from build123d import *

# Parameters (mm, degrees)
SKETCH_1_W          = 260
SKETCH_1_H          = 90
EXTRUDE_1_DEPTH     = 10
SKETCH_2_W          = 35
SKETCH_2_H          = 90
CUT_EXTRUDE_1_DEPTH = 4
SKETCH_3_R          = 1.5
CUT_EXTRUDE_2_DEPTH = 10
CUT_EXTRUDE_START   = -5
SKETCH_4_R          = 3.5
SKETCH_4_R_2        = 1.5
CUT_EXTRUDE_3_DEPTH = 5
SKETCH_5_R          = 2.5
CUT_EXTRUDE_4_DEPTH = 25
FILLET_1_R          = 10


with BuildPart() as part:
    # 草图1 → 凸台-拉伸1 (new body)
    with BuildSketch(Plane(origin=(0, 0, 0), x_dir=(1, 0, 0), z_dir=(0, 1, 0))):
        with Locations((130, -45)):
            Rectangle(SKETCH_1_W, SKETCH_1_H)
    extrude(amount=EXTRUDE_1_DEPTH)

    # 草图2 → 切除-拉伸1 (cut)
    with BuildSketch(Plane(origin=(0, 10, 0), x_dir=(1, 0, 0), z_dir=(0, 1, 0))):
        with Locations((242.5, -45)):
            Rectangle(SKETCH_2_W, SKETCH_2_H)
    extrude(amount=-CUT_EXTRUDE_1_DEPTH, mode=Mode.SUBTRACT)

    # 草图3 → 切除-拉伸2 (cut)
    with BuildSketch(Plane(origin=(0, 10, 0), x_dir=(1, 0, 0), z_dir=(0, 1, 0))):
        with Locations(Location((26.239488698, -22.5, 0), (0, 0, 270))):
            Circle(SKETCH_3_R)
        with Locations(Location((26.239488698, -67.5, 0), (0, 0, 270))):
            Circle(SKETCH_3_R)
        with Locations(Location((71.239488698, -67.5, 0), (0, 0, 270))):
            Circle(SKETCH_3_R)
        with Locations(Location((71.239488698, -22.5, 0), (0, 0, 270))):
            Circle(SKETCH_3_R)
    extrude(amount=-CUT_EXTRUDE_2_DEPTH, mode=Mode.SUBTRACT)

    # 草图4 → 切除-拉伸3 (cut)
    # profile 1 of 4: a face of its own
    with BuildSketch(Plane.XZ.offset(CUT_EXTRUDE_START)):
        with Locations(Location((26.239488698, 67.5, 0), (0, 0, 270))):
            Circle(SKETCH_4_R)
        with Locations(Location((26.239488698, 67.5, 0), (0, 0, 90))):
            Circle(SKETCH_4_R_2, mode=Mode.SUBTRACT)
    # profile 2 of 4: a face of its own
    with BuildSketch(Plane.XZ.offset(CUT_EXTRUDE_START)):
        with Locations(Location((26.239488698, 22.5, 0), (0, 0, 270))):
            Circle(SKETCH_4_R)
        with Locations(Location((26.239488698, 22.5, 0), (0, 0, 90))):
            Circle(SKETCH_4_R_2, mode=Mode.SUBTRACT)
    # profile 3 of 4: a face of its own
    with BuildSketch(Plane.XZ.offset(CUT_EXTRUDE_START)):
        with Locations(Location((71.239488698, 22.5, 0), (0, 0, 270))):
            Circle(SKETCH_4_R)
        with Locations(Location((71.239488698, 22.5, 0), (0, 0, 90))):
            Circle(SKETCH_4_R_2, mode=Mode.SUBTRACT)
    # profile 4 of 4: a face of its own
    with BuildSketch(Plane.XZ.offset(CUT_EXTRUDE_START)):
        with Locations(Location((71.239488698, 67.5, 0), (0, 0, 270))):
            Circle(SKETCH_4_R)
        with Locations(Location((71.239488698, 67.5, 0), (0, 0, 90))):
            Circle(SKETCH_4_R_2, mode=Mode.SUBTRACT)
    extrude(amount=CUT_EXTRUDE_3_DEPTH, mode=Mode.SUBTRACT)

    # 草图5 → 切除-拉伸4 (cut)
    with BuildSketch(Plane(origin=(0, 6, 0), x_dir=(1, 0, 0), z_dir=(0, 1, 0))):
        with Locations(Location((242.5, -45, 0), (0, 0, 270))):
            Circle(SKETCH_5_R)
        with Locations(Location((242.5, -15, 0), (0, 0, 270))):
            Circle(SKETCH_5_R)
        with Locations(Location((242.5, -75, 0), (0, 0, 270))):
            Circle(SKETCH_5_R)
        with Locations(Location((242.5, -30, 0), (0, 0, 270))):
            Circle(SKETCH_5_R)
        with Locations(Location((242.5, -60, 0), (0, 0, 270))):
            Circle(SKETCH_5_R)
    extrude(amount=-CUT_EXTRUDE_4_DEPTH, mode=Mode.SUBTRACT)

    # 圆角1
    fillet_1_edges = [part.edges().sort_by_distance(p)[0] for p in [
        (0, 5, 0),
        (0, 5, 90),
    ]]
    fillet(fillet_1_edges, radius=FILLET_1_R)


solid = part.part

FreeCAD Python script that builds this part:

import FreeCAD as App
import Part
import Sketcher

V = App.Vector
Q = App.Units.Quantity


def edges_at(feature, points):
    """Names of the edges that pass closest to the given points."""
    edges = feature.Shape.Edges
    near = lambda p: min(range(len(edges)), key=lambda i: edges[i].distToShape(Part.Vertex(*p))[0])
    return sorted({f"Edge{near(p) + 1}" for p in points})

doc = App.newDocument("Part")
body = doc.addObject("PartDesign::Body", "Body")

sketch1 = doc.addObject("Sketcher::SketchObject", "Sketch")
body.addObject(sketch1)
sketch1.AttachmentSupport = (doc.XZ_Plane, [""])
sketch1.MapMode = "FlatFace"
sketch1.addGeometry(Part.LineSegment(V(0, 0, 0), V(0, 90, 0)), False)
sketch1.addGeometry(Part.LineSegment(V(0, 90, 0), V(260, 90, 0)), False)
sketch1.addGeometry(Part.LineSegment(V(260, 90, 0), V(260, 0, 0)), False)
sketch1.addGeometry(Part.LineSegment(V(260, 0, 0), V(0, 0, 0)), False)
sketch1.addConstraint(Sketcher.Constraint("Coincident", 0, 2, 1, 1))
sketch1.addConstraint(Sketcher.Constraint("Coincident", 1, 2, 2, 1))
sketch1.addConstraint(Sketcher.Constraint("Coincident", 2, 2, 3, 1))
sketch1.addConstraint(Sketcher.Constraint("Coincident", 3, 2, 0, 1))
sketch1.addConstraint(Sketcher.Constraint("Vertical", 0))
sketch1.addConstraint(Sketcher.Constraint("Horizontal", 1))
sketch1.addConstraint(Sketcher.Constraint("Vertical", 2))
sketch1.addConstraint(Sketcher.Constraint("Horizontal", 3))
sketch1.addConstraint(Sketcher.Constraint("Coincident", 3, 2, -1, 1))
sketch1.addConstraint(Sketcher.Constraint("DistanceX", 1, 1, 1, 2, Q("260 mm")))
sketch1.addConstraint(Sketcher.Constraint("DistanceY", 0, 1, 0, 2, Q("90 mm")))
pad1 = doc.addObject("PartDesign::Pad", "Pad")
body.addObject(pad1)
pad1.Profile = sketch1
pad1.Length = 10
pad1.Reversed = True

sketch2 = doc.addObject("Sketcher::SketchObject", "Sketch001")
body.addObject(sketch2)
sketch2.AttachmentSupport = (doc.XZ_Plane, [""])
sketch2.MapMode = "FlatFace"
sketch2.AttachmentOffset = App.Placement(V(0, 0, -10), App.Rotation())
sketch2.addGeometry(Part.LineSegment(V(225, 0, 0), V(225, 90, 0)), False)
sketch2.addGeometry(Part.LineSegment(V(225, 90, 0), V(260, 90, 0)), False)
sketch2.addGeometry(Part.LineSegment(V(260, 90, 0), V(260, 0, 0)), False)
sketch2.addGeometry(Part.LineSegment(V(260, 0, 0), V(225, 0, 0)), False)
sketch2.addConstraint(Sketcher.Constraint("Coincident", 0, 2, 1, 1))
sketch2.addConstraint(Sketcher.Constraint("Coincident", 1, 2, 2, 1))
sketch2.addConstraint(Sketcher.Constraint("Coincident", 2, 2, 3, 1))
sketch2.addConstraint(Sketcher.Constraint("Coincident", 3, 2, 0, 1))
sketch2.addConstraint(Sketcher.Constraint("Vertical", 0))
sketch2.addConstraint(Sketcher.Constraint("Horizontal", 1))
sketch2.addConstraint(Sketcher.Constraint("Vertical", 2))
sketch2.addConstraint(Sketcher.Constraint("Horizontal", 3))
sketch2.addConstraint(Sketcher.Constraint("PointOnObject", 2, 2, -1))
sketch2.addConstraint(Sketcher.Constraint("DistanceX", 1, 1, 1, 2, Q("35 mm")))
sketch2.addConstraint(Sketcher.Constraint("DistanceY", 0, 1, 0, 2, Q("90 mm")))
sketch2.addConstraint(Sketcher.Constraint("DistanceX", -1, 1, 0, 2, Q("225 mm")))
pocket1 = doc.addObject("PartDesign::Pocket", "Pocket")
body.addObject(pocket1)
pocket1.Profile = sketch2
pocket1.Length = 4
pocket1.Reversed = True

sketch3 = doc.addObject("Sketcher::SketchObject", "Sketch002")
body.addObject(sketch3)
sketch3.AttachmentSupport = (doc.XZ_Plane, [""])
sketch3.MapMode = "FlatFace"
sketch3.AttachmentOffset = App.Placement(V(0, 0, -10), App.Rotation())
sketch3.addGeometry(Part.Circle(V(26.239489, 22.5, 0), V(0, 0, 1), 1.5), False)
sketch3.addGeometry(Part.Circle(V(26.239489, 67.5, 0), V(0, 0, 1), 1.5), False)
sketch3.addGeometry(Part.Circle(V(71.239489, 67.5, 0), V(0, 0, 1), 1.5), False)
sketch3.addGeometry(Part.Circle(V(71.239489, 22.5, 0), V(0, 0, 1), 1.5), False)
sketch3.addConstraint(Sketcher.Constraint("Equal", 0, 1))
sketch3.addConstraint(Sketcher.Constraint("Equal", 1, 2))
sketch3.addConstraint(Sketcher.Constraint("Equal", 2, 3))
sketch3.addConstraint(Sketcher.Constraint("Horizontal", 1, 3, 2, 3))
sketch3.addConstraint(Sketcher.Constraint("Horizontal", 0, 3, 3, 3))
sketch3.addConstraint(Sketcher.Constraint("Vertical", 0, 3, 1, 3))
sketch3.addConstraint(Sketcher.Constraint("Vertical", 2, 3, 3, 3))
sketch3.addConstraint(Sketcher.Constraint("Diameter", 0, Q("3 mm")))
sketch3.addConstraint(Sketcher.Constraint("DistanceY", 0, 3, 1, 3, Q("45 mm")))
sketch3.addConstraint(Sketcher.Constraint("DistanceX", 1, 3, 2, 3, Q("45 mm")))
sketch3.addConstraint(Sketcher.Constraint("DistanceY", -1, 1, 0, 3, Q("22.5 mm")))
sketch3.addConstraint(Sketcher.Constraint("DistanceX", -1, 1, 0, 3, Q("26.239489 mm")))
pocket2 = doc.addObject("PartDesign::Pocket", "Pocket001")
body.addObject(pocket2)
pocket2.Profile = sketch3
pocket2.Length = 10
pocket2.Reversed = True

sketch4 = doc.addObject("Sketcher::SketchObject", "Sketch003")
body.addObject(sketch4)
sketch4.AttachmentSupport = (doc.XZ_Plane, [""])
sketch4.MapMode = "FlatFace"
sketch4.AttachmentOffset = App.Placement(V(0, 0, -5), App.Rotation())
sketch4.addGeometry(Part.Circle(V(26.239489, 67.5, 0), V(0, 0, 1), 3.5), False)
sketch4.addGeometry(Part.Circle(V(26.239489, 67.5, 0), V(0, 0, 1), 1.5), False)
sketch4.addGeometry(Part.Circle(V(26.239489, 22.5, 0), V(0, 0, 1), 3.5), False)
sketch4.addGeometry(Part.Circle(V(26.239489, 22.5, 0), V(0, 0, 1), 1.5), False)
sketch4.addGeometry(Part.Circle(V(71.239489, 22.5, 0), V(0, 0, 1), 3.5), False)
sketch4.addGeometry(Part.Circle(V(71.239489, 22.5, 0), V(0, 0, 1), 1.5), False)
sketch4.addGeometry(Part.Circle(V(71.239489, 67.5, 0), V(0, 0, 1), 3.5), False)
sketch4.addGeometry(Part.Circle(V(71.239489, 67.5, 0), V(0, 0, 1), 1.5), False)
sketch4.addConstraint(Sketcher.Constraint("Coincident", 1, 3, 0, 3))
sketch4.addConstraint(Sketcher.Constraint("Coincident", 3, 3, 2, 3))
sketch4.addConstraint(Sketcher.Constraint("Coincident", 5, 3, 4, 3))
sketch4.addConstraint(Sketcher.Constraint("Coincident", 7, 3, 6, 3))
sketch4.addConstraint(Sketcher.Constraint("Equal", 0, 2))
sketch4.addConstraint(Sketcher.Constraint("Equal", 1, 3))
sketch4.addConstraint(Sketcher.Constraint("Equal", 2, 4))
sketch4.addConstraint(Sketcher.Constraint("Equal", 3, 5))
sketch4.addConstraint(Sketcher.Constraint("Equal", 4, 6))
sketch4.addConstraint(Sketcher.Constraint("Equal", 5, 7))
sketch4.addConstraint(Sketcher.Constraint("Horizontal", 3, 3, 4, 3))
sketch4.addConstraint(Sketcher.Constraint("Horizontal", 1, 3, 6, 3))
sketch4.addConstraint(Sketcher.Constraint("Vertical", 1, 3, 2, 3))
sketch4.addConstraint(Sketcher.Constraint("Vertical", 5, 3, 6, 3))
sketch4.addConstraint(Sketcher.Constraint("Diameter", 0, Q("7 mm")))
sketch4.addConstraint(Sketcher.Constraint("Diameter", 1, Q("3 mm")))
sketch4.addConstraint(Sketcher.Constraint("DistanceY", 2, 3, 0, 3, Q("45 mm")))
sketch4.addConstraint(Sketcher.Constraint("DistanceX", 2, 3, 4, 3, Q("45 mm")))
sketch4.addConstraint(Sketcher.Constraint("DistanceY", -1, 1, 0, 3, Q("67.5 mm")))
sketch4.addConstraint(Sketcher.Constraint("DistanceX", -1, 1, 0, 3, Q("26.239489 mm")))
pocket3 = doc.addObject("PartDesign::Pocket", "Pocket002")
body.addObject(pocket3)
pocket3.Profile = sketch4
pocket3.Length = 5
pocket3.Reversed = True

sketch5 = doc.addObject("Sketcher::SketchObject", "Sketch004")
body.addObject(sketch5)
sketch5.AttachmentSupport = (doc.XZ_Plane, [""])
sketch5.MapMode = "FlatFace"
sketch5.AttachmentOffset = App.Placement(V(0, 0, -6), App.Rotation())
sketch5.addGeometry(Part.Circle(V(242.5, 45, 0), V(0, 0, 1), 2.5), False)
sketch5.addGeometry(Part.Circle(V(242.5, 15, 0), V(0, 0, 1), 2.5), False)
sketch5.addGeometry(Part.Circle(V(242.5, 75, 0), V(0, 0, 1), 2.5), False)
sketch5.addGeometry(Part.Circle(V(242.5, 30, 0), V(0, 0, 1), 2.5), False)
sketch5.addGeometry(Part.Circle(V(242.5, 60, 0), V(0, 0, 1), 2.5), False)
sketch5.addConstraint(Sketcher.Constraint("Equal", 0, 1))
sketch5.addConstraint(Sketcher.Constraint("Equal", 1, 2))
sketch5.addConstraint(Sketcher.Constraint("Equal", 2, 3))
sketch5.addConstraint(Sketcher.Constraint("Equal", 3, 4))
sketch5.addConstraint(Sketcher.Constraint("Vertical", 0, 3, 1, 3))
sketch5.addConstraint(Sketcher.Constraint("Vertical", 1, 3, 2, 3))
sketch5.addConstraint(Sketcher.Constraint("Vertical", 2, 3, 3, 3))
sketch5.addConstraint(Sketcher.Constraint("Vertical", 3, 3, 4, 3))
sketch5.addConstraint(Sketcher.Constraint("Diameter", 0, Q("5 mm")))
sketch5.addConstraint(Sketcher.Constraint("DistanceY", -1, 1, 0, 3, Q("45 mm")))
sketch5.addConstraint(Sketcher.Constraint("DistanceY", -1, 1, 1, 3, Q("15 mm")))
sketch5.addConstraint(Sketcher.Constraint("DistanceY", -1, 1, 2, 3, Q("75 mm")))
sketch5.addConstraint(Sketcher.Constraint("DistanceY", -1, 1, 3, 3, Q("30 mm")))
sketch5.addConstraint(Sketcher.Constraint("DistanceY", -1, 1, 4, 3, Q("60 mm")))
sketch5.addConstraint(Sketcher.Constraint("DistanceX", -1, 1, 0, 3, Q("242.5 mm")))
pocket4 = doc.addObject("PartDesign::Pocket", "Pocket003")
body.addObject(pocket4)
pocket4.Profile = sketch5
pocket4.Length = 25
pocket4.Reversed = True
doc.recompute()

fillet = doc.addObject("PartDesign::Fillet", "Fillet")
body.addObject(fillet)
fillet.Base = (pocket4, edges_at(pocket4, [(0, 5, 0), (0, 5, 90)]))
fillet.Radius = 10

doc.recompute()
